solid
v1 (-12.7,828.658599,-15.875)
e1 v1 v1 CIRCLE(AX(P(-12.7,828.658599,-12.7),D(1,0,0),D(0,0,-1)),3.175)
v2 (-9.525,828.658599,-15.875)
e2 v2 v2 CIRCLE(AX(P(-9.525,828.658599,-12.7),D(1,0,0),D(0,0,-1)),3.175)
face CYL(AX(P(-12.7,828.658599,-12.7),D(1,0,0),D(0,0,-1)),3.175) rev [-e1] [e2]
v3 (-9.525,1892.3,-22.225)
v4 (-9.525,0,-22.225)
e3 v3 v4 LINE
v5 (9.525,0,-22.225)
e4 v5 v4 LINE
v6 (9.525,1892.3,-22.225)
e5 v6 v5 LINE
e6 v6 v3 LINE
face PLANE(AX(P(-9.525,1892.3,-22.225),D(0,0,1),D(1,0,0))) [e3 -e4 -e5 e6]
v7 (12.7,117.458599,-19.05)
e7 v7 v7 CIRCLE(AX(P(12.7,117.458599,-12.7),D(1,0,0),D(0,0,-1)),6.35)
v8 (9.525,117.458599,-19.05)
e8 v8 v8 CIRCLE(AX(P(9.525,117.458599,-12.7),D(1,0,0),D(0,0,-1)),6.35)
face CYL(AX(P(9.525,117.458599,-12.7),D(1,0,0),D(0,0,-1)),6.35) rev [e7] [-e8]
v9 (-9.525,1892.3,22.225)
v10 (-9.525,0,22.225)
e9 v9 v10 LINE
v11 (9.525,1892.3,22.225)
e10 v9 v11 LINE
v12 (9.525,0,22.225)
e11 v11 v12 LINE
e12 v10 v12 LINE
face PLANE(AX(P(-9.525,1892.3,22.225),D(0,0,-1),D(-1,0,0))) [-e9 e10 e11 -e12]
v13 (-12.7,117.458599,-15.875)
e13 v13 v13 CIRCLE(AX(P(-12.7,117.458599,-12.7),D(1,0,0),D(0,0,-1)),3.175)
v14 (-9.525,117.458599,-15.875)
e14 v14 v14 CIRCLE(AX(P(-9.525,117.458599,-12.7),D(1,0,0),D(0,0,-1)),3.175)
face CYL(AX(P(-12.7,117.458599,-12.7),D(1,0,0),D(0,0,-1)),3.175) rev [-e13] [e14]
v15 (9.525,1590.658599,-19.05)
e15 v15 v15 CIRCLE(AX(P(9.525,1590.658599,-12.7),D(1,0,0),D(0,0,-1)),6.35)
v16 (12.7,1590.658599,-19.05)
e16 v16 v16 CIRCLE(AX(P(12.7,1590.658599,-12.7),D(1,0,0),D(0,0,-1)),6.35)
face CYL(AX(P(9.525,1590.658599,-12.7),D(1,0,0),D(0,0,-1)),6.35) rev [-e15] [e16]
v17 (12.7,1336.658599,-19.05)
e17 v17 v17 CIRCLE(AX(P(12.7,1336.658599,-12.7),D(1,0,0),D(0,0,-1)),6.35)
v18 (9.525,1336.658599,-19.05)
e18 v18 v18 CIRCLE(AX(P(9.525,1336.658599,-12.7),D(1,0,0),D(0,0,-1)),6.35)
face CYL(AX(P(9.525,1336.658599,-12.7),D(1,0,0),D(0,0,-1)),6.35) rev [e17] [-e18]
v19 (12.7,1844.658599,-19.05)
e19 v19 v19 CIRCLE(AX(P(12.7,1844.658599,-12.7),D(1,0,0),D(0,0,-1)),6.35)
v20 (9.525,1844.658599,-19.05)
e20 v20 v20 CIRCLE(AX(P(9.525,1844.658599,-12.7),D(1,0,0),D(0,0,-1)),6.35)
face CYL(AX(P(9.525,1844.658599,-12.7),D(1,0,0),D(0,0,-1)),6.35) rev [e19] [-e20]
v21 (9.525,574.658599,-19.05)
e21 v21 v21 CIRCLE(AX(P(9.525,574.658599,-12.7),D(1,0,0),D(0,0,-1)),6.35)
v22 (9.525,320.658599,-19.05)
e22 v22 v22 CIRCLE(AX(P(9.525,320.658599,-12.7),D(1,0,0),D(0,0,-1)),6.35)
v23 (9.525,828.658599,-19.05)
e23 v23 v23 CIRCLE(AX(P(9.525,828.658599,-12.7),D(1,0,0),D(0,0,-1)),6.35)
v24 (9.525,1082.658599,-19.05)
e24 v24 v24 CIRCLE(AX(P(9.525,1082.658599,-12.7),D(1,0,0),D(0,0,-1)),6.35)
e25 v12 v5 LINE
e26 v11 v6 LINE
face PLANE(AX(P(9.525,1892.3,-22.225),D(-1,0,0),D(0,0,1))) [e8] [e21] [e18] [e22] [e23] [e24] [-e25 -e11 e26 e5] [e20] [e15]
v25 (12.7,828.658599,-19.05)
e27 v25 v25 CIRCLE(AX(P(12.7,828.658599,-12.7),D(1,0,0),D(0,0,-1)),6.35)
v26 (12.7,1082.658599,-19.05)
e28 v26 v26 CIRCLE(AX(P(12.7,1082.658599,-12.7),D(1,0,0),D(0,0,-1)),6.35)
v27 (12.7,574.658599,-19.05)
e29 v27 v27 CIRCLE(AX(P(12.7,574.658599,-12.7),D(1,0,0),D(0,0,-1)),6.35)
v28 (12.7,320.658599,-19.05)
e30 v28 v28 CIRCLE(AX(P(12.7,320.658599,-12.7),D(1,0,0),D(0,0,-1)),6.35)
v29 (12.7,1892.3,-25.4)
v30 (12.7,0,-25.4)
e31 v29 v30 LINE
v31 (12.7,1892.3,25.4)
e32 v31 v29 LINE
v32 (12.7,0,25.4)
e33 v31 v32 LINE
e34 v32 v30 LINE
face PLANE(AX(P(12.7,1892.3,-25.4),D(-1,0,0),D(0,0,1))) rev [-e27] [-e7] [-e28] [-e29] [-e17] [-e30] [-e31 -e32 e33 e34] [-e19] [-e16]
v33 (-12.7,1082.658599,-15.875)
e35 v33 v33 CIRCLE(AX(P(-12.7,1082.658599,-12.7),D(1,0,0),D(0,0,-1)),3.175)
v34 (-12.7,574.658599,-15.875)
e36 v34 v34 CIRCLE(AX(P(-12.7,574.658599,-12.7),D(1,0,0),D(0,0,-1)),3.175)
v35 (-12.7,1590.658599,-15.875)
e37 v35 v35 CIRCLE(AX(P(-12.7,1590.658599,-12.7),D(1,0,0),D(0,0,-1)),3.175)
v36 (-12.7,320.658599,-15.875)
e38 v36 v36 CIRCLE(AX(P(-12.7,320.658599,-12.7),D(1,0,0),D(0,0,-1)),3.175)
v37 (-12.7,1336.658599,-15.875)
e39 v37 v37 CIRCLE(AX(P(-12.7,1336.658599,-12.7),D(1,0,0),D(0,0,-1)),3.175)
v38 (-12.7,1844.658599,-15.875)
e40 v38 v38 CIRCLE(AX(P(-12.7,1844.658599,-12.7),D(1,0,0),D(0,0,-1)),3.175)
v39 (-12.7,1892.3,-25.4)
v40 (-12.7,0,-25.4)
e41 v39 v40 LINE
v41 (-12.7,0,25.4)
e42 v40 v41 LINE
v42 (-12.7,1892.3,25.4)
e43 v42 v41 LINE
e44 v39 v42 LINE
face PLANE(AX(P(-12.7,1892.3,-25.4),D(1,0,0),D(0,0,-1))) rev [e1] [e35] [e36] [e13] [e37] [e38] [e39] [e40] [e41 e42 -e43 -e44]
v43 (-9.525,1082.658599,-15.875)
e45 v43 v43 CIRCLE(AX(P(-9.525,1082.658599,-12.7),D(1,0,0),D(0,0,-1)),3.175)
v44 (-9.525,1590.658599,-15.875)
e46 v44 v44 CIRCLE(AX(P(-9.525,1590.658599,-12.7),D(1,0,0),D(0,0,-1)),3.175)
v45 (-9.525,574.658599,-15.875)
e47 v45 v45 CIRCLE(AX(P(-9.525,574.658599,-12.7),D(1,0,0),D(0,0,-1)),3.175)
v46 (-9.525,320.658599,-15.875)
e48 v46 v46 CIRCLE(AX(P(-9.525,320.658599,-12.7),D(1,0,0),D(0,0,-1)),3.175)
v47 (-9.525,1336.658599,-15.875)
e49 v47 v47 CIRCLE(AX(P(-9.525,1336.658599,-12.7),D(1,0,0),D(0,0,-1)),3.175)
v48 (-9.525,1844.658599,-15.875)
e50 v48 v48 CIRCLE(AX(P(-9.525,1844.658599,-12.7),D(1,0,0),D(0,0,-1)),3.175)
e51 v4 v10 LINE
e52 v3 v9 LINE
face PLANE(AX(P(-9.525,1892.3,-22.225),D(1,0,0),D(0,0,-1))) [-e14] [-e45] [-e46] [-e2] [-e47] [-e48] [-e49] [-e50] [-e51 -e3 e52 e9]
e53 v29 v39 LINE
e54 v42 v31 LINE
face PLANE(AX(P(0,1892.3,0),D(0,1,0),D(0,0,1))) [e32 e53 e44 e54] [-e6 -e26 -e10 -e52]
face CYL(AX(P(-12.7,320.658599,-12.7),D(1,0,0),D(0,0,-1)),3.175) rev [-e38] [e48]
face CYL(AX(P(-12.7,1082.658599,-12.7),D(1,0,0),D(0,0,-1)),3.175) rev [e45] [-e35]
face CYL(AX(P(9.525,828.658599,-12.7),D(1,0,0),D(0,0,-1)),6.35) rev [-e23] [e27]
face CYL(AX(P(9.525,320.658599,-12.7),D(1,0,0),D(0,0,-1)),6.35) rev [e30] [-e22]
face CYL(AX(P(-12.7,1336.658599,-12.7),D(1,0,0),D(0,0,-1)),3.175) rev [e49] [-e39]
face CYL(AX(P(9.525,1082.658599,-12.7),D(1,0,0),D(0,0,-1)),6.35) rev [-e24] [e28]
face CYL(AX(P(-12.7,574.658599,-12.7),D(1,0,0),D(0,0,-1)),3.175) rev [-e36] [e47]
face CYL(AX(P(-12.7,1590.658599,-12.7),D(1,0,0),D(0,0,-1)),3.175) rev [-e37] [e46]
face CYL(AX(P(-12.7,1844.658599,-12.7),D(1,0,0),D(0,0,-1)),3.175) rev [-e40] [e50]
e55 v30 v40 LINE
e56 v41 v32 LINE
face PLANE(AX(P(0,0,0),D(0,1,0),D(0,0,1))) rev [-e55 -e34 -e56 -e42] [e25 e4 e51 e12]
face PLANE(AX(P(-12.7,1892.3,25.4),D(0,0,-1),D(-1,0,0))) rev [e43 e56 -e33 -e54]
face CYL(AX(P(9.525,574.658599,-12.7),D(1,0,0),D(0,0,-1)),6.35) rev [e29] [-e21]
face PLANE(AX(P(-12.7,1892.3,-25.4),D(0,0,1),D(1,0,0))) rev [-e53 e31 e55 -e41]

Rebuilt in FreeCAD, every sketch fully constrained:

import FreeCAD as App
import Part
import Sketcher
from FreeCAD import Vector
Q = App.Units.Quantity

doc = App.newDocument("Part")
params = doc.addObject("Spreadsheet::Sheet", "Params")
for row, (alias, value) in enumerate([
    ("sketch1_width", "1 in"),
    ("sketch1_height", "2 in"),
    ("sketch1_width2", "0.75 in"),
    ("sketch1_height2", "1.75 in"),
    ("pad1_length", "74.5 in"),
    ("sketch2_diameter", "0.25 in"),
    ("pocket1_length", "1 in"),
    ("sketch3_diameter", "0.25 in"),
    ("pocket2_length", "1 in"),
    ("sketch4_diameter", "0.5 in"),
    ("pocket3_length", "0.125 in"),
    ("sketch5_diameter", "0.5 in"),
    ("pocket4_length", "0.125 in"),
], start=1):
    params.set(f"A{row}", alias)
    params.set(f"B{row}", "=" + value)
    params.setAlias(f"B{row}", alias)

body = doc.addObject("PartDesign::Body", "Body")

# Sketch on XZ plane
sketch1 = body.newObject("Sketcher::SketchObject", "Sketch")
sketch1.AttachmentSupport = (doc.getObject("XZ_Plane"), [""])
sketch1.MapMode = "FlatFace"
sketch1.addGeometry([
    Part.LineSegment(Vector(-12.7, -25.4, 0), Vector(-12.7, 25.4, 0)),  # 0
    Part.LineSegment(Vector(-12.7, 25.4, 0), Vector(12.7, 25.4, 0)),  # 1
    Part.LineSegment(Vector(12.7, 25.4, 0), Vector(12.7, -25.4, 0)),  # 2
    Part.LineSegment(Vector(12.7, -25.4, 0), Vector(-12.7, -25.4, 0)),  # 3
    Part.LineSegment(Vector(9.525, 22.225, 0), Vector(-9.525, 22.225, 0)),  # 4
    Part.LineSegment(Vector(-9.525, 22.225, 0), Vector(-9.525, -22.225, 0)),  # 5
    Part.LineSegment(Vector(-9.525, -22.225, 0), Vector(9.525, -22.225, 0)),  # 6
    Part.LineSegment(Vector(9.525, -22.225, 0), Vector(9.525, 22.225, 0)),  # 7
], False)
sketch1.addConstraint([
    Sketcher.Constraint("Coincident", 0, 2, 1, 1),
    Sketcher.Constraint("Coincident", 1, 2, 2, 1),
    Sketcher.Constraint("Coincident", 2, 2, 3, 1),
    Sketcher.Constraint("Coincident", 3, 2, 0, 1),
    Sketcher.Constraint("Coincident", 4, 2, 5, 1),
    Sketcher.Constraint("Coincident", 5, 2, 6, 1),
    Sketcher.Constraint("Coincident", 6, 2, 7, 1),
    Sketcher.Constraint("Coincident", 7, 2, 4, 1),
    Sketcher.Constraint("Vertical", 0),
    Sketcher.Constraint("Horizontal", 1),
    Sketcher.Constraint("Vertical", 2),
    Sketcher.Constraint("Horizontal", 3),
    Sketcher.Constraint("Horizontal", 4),
    Sketcher.Constraint("Vertical", 5),
    Sketcher.Constraint("Horizontal", 6),
    Sketcher.Constraint("Vertical", 7),
    Sketcher.Constraint("Symmetric", 0, 2, 2, 2, -1, 1),
    Sketcher.Constraint("Symmetric", 4, 2, 6, 2, -1, 1),
    Sketcher.Constraint("DistanceX", 1, 1, 1, 2, Q("1 in")),
    Sketcher.Constraint("DistanceY", 0, 1, 0, 2, Q("2 in")),
    Sketcher.Constraint("DistanceX", 4, 2, 4, 1, Q("0.75 in")),
    Sketcher.Constraint("DistanceY", 5, 2, 5, 1, Q("1.75 in")),
])
sketch1.setExpression("Constraints[18]", "Params.sketch1_width")
sketch1.setExpression("Constraints[19]", "Params.sketch1_height")
sketch1.setExpression("Constraints[20]", "Params.sketch1_width2")
sketch1.setExpression("Constraints[21]", "Params.sketch1_height2")
pad1 = body.newObject("PartDesign::Pad", "Pad")
pad1.Profile = sketch1
pad1.setExpression("Length", "Params.pad1_length")
pad1.Reversed = True

# Sketch on YZ plane
sketch2 = body.newObject("Sketcher::SketchObject", "Sketch001")
sketch2.AttachmentSupport = (doc.getObject("YZ_Plane"), [""])
sketch2.MapMode = "FlatFace"
sketch2.AttachmentOffset = App.Placement(Vector(0, 0, 0.5 * 25.4), App.Rotation())
sketch2.addGeometry([
    Part.Circle(Vector(1844.658599, -12.7, 0), Vector(0, 0, 1), 3.175),  # 0
    Part.Circle(Vector(1590.658599, -12.7, 0), Vector(0, 0, 1), 3.175),  # 1
    Part.Circle(Vector(1336.658599, -12.7, 0), Vector(0, 0, 1), 3.175),  # 2
    Part.Circle(Vector(1082.658599, -12.7, 0), Vector(0, 0, 1), 3.175),  # 3
    Part.Circle(Vector(828.658599, -12.7, 0), Vector(0, 0, 1), 3.175),  # 4
    Part.Circle(Vector(574.658599, -12.7, 0), Vector(0, 0, 1), 3.175),  # 5
    Part.Circle(Vector(320.658599, -12.7, 0), Vector(0, 0, 1), 3.175),  # 6
], False)
sketch2.addConstraint([
    Sketcher.Constraint("Equal", 0, 1),
    Sketcher.Constraint("Equal", 1, 2),
    Sketcher.Constraint("Equal", 2, 3),
    Sketcher.Constraint("Equal", 3, 4),
    Sketcher.Constraint("Equal", 4, 5),
    Sketcher.Constraint("Equal", 5, 6),
    Sketcher.Constraint("Horizontal", 0, 3, 1, 3),
    Sketcher.Constraint("Horizontal", 1, 3, 2, 3),
    Sketcher.Constraint("Horizontal", 2, 3, 3, 3),
    Sketcher.Constraint("Horizontal", 3, 3, 4, 3),
    Sketcher.Constraint("Horizontal", 4, 3, 5, 3),
    Sketcher.Constraint("Horizontal", 5, 3, 6, 3),
    Sketcher.Constraint("Diameter", 0, Q("0.25 in")),
    Sketcher.Constraint("DistanceX", 1, 3, 0, 3, Q("10 in")),
    Sketcher.Constraint("DistanceX", 2, 3, 1, 3, Q("10 in")),
    Sketcher.Constraint("DistanceX", 3, 3, 2, 3, Q("10 in")),
    Sketcher.Constraint("DistanceX", 4, 3, 3, 3, Q("10 in")),
    Sketcher.Constraint("DistanceX", 5, 3, 4, 3, Q("10 in")),
    Sketcher.Constraint("DistanceX", 6, 3, 5, 3, Q("10 in")),
    Sketcher.Constraint("DistanceY", 0, 3, -1, 1, Q("0.5 in")),
    Sketcher.Constraint("DistanceX", -1, 1, 0, 3, 1844.658599),
])
sketch2.setExpression("Constraints[12]", "Params.sketch2_diameter")
pocket1 = body.newObject("PartDesign::Pocket", "Pocket")
pocket1.Profile = sketch2
pocket1.setExpression("Length", "Params.pocket1_length")

# Sketch on YZ plane
sketch3 = body.newObject("Sketcher::SketchObject", "Sketch002")
sketch3.AttachmentSupport = (doc.getObject("YZ_Plane"), [""])
sketch3.MapMode = "FlatFace"
sketch3.AttachmentOffset = App.Placement(Vector(0, 0, 0.5 * 25.4), App.Rotation())
sketch3.addGeometry(Part.Circle(Vector(117.458599, -12.7, 0), Vector(0, 0, 1), 3.175), False)
sketch3.addConstraint([
    Sketcher.Constraint("Diameter", 0, Q("0.25 in")),
    Sketcher.Constraint("DistanceY", 0, 3, -1, 1, Q("0.5 in")),
    Sketcher.Constraint("DistanceX", -1, 1, 0, 3, 117.458599),
])
sketch3.setExpression("Constraints[0]", "Params.sketch3_diameter")
pocket2 = body.newObject("PartDesign::Pocket", "Pocket001")
pocket2.Profile = sketch3
pocket2.setExpression("Length", "Params.pocket2_length")

# Sketch on YZ plane
sketch4 = body.newObject("Sketcher::SketchObject", "Sketch003")
sketch4.AttachmentSupport = (doc.getObject("YZ_Plane"), [""])
sketch4.MapMode = "FlatFace"
sketch4.AttachmentOffset = App.Placement(Vector(0, 0, 0.5 * 25.4), App.Rotation())
sketch4.addGeometry([
    Part.Circle(Vector(1844.658599, -12.7, 0), Vector(0, 0, 1), 6.35),  # 0
    Part.Circle(Vector(1590.658599, -12.7, 0), Vector(0, 0, 1), 6.35),  # 1
    Part.Circle(Vector(1336.658599, -12.7, 0), Vector(0, 0, 1), 6.35),  # 2
    Part.Circle(Vector(1082.658599, -12.7, 0), Vector(0, 0, 1), 6.35),  # 3
    Part.Circle(Vector(828.658599, -12.7, 0), Vector(0, 0, 1), 6.35),  # 4
    Part.Circle(Vector(574.658599, -12.7, 0), Vector(0, 0, 1), 6.35),  # 5
    Part.Circle(Vector(320.658599, -12.7, 0), Vector(0, 0, 1), 6.35),  # 6
], False)
sketch4.addConstraint([
    Sketcher.Constraint("Equal", 0, 1),
    Sketcher.Constraint("Equal", 1, 2),
    Sketcher.Constraint("Equal", 2, 3),
    Sketcher.Constraint("Equal", 3, 4),
    Sketcher.Constraint("Equal", 4, 5),
    Sketcher.Constraint("Equal", 5, 6),
    Sketcher.Constraint("Horizontal", 0, 3, 1, 3),
    Sketcher.Constraint("Horizontal", 1, 3, 2, 3),
    Sketcher.Constraint("Horizontal", 2, 3, 3, 3),
    Sketcher.Constraint("Horizontal", 3, 3, 4, 3),
    Sketcher.Constraint("Horizontal", 4, 3, 5, 3),
    Sketcher.Constraint("Horizontal", 5, 3, 6, 3),
    Sketcher.Constraint("Diameter", 0, Q("0.5 in")),
    Sketcher.Constraint("DistanceX", 1, 3, 0, 3, Q("10 in")),
    Sketcher.Constraint("DistanceX", 2, 3, 1, 3, Q("10 in")),
    Sketcher.Constraint("DistanceX", 3, 3, 2, 3, Q("10 in")),
    Sketcher.Constraint("DistanceX", 4, 3, 3, 3, Q("10 in")),
    Sketcher.Constraint("DistanceX", 5, 3, 4, 3, Q("10 in")),
    Sketcher.Constraint("DistanceX", 6, 3, 5, 3, Q("10 in")),
    Sketcher.Constraint("DistanceY", 0, 3, -1, 1, Q("0.5 in")),
    Sketcher.Constraint("DistanceX", -1, 1, 0, 3, 1844.658599),
])
sketch4.setExpression("Constraints[12]", "Params.sketch4_diameter")
pocket3 = body.newObject("PartDesign::Pocket", "Pocket002")
pocket3.Profile = sketch4
pocket3.setExpression("Length", "Params.pocket3_length")

# Sketch on YZ plane
sketch5 = body.newObject("Sketcher::SketchObject", "Sketch004")
sketch5.AttachmentSupport = (doc.getObject("YZ_Plane"), [""])
sketch5.MapMode = "FlatFace"
sketch5.AttachmentOffset = App.Placement(Vector(0, 0, 0.5 * 25.4), App.Rotation())
sketch5.addGeometry(Part.Circle(Vector(117.458599, -12.7, 0), Vector(0, 0, 1), 6.35), False)
sketch5.addConstraint([
    Sketcher.Constraint("Diameter", 0, Q("0.5 in")),
    Sketcher.Constraint("DistanceY", 0, 3, -1, 1, Q("0.5 in")),
    Sketcher.Constraint("DistanceX", -1, 1, 0, 3, 117.458599),
])
sketch5.setExpression("Constraints[0]", "Params.sketch5_diameter")
pocket4 = body.newObject("PartDesign::Pocket", "Pocket003")
pocket4.Profile = sketch5
pocket4.setExpression("Length", "Params.pocket4_length")

doc.recompute()
